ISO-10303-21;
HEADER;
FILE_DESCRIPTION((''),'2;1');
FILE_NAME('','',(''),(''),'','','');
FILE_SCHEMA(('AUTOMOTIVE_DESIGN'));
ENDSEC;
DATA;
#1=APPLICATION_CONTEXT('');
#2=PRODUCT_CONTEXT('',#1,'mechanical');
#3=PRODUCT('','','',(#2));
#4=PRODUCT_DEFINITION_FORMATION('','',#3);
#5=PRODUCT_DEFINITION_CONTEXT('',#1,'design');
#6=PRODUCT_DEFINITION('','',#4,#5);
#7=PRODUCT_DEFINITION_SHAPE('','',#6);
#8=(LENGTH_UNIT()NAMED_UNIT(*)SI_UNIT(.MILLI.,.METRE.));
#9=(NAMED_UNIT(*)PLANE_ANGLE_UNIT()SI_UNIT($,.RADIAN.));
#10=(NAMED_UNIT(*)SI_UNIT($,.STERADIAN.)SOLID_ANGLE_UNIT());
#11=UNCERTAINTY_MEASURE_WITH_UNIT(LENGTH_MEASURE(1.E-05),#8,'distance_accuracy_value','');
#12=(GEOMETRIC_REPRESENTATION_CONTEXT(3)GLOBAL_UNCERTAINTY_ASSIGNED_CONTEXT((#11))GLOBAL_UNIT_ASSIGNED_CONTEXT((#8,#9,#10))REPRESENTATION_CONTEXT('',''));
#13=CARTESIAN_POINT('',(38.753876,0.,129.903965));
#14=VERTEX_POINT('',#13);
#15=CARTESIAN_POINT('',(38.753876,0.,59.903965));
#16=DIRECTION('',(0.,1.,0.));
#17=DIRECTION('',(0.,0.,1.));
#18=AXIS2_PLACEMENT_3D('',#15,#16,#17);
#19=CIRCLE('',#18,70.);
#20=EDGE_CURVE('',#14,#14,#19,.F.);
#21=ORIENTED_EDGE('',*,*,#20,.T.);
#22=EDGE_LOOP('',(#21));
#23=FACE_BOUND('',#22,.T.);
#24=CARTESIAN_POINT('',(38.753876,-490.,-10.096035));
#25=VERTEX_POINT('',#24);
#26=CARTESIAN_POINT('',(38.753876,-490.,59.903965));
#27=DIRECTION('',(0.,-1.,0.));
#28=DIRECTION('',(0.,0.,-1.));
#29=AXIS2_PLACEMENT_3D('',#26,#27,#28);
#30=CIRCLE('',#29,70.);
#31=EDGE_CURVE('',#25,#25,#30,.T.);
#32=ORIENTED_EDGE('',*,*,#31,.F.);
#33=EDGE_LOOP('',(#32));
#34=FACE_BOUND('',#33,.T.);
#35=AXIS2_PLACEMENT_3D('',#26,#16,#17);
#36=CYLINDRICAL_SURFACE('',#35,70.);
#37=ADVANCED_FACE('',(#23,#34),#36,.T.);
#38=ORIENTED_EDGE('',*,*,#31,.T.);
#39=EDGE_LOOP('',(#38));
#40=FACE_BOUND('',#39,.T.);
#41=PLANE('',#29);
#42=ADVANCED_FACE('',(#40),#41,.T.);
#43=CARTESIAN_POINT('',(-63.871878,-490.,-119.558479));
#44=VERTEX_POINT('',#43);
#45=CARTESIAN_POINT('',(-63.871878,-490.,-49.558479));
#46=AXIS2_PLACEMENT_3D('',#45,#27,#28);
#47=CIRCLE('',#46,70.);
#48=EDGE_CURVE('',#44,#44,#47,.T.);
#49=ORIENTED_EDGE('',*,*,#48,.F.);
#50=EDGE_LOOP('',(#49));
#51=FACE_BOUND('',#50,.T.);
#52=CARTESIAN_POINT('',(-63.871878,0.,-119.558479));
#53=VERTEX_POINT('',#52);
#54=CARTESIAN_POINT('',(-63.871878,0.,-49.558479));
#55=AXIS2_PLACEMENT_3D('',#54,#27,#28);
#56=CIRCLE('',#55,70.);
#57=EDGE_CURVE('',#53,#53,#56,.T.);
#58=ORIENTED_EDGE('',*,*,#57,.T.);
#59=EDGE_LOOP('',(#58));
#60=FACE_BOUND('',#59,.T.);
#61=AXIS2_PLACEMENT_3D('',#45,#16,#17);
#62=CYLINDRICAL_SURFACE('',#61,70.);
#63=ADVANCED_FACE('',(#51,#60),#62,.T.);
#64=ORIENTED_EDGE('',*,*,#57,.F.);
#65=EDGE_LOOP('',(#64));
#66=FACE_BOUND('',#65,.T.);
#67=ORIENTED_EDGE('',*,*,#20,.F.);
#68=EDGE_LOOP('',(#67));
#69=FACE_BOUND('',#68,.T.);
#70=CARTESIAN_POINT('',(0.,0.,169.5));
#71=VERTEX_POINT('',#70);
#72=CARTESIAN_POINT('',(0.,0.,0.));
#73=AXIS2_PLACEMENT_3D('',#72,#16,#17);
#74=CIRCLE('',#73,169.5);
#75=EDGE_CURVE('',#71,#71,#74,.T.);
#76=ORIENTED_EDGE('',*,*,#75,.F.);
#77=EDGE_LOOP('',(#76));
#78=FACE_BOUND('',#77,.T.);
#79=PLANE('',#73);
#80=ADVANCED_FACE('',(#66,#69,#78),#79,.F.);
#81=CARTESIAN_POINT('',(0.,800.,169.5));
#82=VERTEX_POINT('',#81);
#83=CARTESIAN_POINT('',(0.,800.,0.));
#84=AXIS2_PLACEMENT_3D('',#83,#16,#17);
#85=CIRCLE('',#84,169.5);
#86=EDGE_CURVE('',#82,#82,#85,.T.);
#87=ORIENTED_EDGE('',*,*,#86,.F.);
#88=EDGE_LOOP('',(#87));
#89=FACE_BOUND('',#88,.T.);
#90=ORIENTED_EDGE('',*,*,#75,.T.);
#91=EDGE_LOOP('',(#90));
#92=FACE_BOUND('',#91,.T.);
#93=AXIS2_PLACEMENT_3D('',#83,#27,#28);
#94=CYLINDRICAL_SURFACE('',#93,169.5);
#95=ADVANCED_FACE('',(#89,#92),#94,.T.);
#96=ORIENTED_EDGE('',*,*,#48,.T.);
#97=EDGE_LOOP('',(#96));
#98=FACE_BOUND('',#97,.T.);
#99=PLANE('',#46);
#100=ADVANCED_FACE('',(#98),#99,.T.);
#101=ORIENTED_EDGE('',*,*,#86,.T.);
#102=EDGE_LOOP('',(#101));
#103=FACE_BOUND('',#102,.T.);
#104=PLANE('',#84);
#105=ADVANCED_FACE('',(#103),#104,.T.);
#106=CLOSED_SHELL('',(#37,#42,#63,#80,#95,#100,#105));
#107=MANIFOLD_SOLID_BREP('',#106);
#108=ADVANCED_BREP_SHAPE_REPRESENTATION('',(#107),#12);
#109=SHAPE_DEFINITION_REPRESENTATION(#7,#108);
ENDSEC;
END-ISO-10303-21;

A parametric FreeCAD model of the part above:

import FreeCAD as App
import Part
import Sketcher

V = App.Vector

doc = App.newDocument("Part")
params = doc.addObject("Spreadsheet::Sheet", "Params")
for row, (alias, value) in enumerate([
    ("sketch1_diameter", "339 mm"),
    ("pad1_length", "800 mm"),
    ("sketch2_diameter", "140 mm"),
    ("pad2_length", "490 mm"),
], start=1):
    params.set(f"A{row}", alias)
    params.set(f"B{row}", "=" + value)
    params.setAlias(f"B{row}", alias)

body = doc.addObject("PartDesign::Body", "Body")

sketch1 = body.newObject("Sketcher::SketchObject", "Sketch")
sketch1.AttachmentSupport = (doc.getObject("XZ_Plane"), [""])
sketch1.MapMode = "FlatFace"
sketch1.addGeometry(Part.Circle(V(0, 0, 0), V(0, 0, 1), 170), False)
sketch1.addConstraint([
    Sketcher.Constraint("Coincident", 0, 3, -1, 1),
    Sketcher.Constraint("Diameter", 0, 339.0),
])
sketch1.setExpression("Constraints[1]", "Params.sketch1_diameter")
pad1 = body.newObject("PartDesign::Pad", "Pad")
pad1.Profile = sketch1
pad1.setExpression("Length", "Params.pad1_length")
pad1.Reversed = True

sketch2 = body.newObject("Sketcher::SketchObject", "Sketch001")
sketch2.AttachmentSupport = (doc.getObject("XZ_Plane"), [""])
sketch2.MapMode = "FlatFace"
sketch2.addGeometry([
    Part.Circle(V(-64, -50, 0), V(0, 0, 1), 70),
    Part.Circle(V(39, 60, 0), V(0, 0, 1), 70),
], False)
sketch2.addConstraint([
    Sketcher.Constraint("Equal", 0, 1),
    Sketcher.Constraint("Diameter", 0, 140.0),
    Sketcher.Constraint("DistanceX", 0, 3, -1, 1, 63.871878),
    Sketcher.Constraint("DistanceY", 0, 3, -1, 1, 49.558479),
    Sketcher.Constraint("DistanceX", -1, 1, 1, 3, 38.753876),
    Sketcher.Constraint("DistanceY", -1, 1, 1, 3, 59.903965),
])
sketch2.setExpression("Constraints[1]", "Params.sketch2_diameter")
pad2 = body.newObject("PartDesign::Pad", "Pad001")
pad2.Profile = sketch2
pad2.setExpression("Length", "Params.pad2_length")

doc.recompute()
